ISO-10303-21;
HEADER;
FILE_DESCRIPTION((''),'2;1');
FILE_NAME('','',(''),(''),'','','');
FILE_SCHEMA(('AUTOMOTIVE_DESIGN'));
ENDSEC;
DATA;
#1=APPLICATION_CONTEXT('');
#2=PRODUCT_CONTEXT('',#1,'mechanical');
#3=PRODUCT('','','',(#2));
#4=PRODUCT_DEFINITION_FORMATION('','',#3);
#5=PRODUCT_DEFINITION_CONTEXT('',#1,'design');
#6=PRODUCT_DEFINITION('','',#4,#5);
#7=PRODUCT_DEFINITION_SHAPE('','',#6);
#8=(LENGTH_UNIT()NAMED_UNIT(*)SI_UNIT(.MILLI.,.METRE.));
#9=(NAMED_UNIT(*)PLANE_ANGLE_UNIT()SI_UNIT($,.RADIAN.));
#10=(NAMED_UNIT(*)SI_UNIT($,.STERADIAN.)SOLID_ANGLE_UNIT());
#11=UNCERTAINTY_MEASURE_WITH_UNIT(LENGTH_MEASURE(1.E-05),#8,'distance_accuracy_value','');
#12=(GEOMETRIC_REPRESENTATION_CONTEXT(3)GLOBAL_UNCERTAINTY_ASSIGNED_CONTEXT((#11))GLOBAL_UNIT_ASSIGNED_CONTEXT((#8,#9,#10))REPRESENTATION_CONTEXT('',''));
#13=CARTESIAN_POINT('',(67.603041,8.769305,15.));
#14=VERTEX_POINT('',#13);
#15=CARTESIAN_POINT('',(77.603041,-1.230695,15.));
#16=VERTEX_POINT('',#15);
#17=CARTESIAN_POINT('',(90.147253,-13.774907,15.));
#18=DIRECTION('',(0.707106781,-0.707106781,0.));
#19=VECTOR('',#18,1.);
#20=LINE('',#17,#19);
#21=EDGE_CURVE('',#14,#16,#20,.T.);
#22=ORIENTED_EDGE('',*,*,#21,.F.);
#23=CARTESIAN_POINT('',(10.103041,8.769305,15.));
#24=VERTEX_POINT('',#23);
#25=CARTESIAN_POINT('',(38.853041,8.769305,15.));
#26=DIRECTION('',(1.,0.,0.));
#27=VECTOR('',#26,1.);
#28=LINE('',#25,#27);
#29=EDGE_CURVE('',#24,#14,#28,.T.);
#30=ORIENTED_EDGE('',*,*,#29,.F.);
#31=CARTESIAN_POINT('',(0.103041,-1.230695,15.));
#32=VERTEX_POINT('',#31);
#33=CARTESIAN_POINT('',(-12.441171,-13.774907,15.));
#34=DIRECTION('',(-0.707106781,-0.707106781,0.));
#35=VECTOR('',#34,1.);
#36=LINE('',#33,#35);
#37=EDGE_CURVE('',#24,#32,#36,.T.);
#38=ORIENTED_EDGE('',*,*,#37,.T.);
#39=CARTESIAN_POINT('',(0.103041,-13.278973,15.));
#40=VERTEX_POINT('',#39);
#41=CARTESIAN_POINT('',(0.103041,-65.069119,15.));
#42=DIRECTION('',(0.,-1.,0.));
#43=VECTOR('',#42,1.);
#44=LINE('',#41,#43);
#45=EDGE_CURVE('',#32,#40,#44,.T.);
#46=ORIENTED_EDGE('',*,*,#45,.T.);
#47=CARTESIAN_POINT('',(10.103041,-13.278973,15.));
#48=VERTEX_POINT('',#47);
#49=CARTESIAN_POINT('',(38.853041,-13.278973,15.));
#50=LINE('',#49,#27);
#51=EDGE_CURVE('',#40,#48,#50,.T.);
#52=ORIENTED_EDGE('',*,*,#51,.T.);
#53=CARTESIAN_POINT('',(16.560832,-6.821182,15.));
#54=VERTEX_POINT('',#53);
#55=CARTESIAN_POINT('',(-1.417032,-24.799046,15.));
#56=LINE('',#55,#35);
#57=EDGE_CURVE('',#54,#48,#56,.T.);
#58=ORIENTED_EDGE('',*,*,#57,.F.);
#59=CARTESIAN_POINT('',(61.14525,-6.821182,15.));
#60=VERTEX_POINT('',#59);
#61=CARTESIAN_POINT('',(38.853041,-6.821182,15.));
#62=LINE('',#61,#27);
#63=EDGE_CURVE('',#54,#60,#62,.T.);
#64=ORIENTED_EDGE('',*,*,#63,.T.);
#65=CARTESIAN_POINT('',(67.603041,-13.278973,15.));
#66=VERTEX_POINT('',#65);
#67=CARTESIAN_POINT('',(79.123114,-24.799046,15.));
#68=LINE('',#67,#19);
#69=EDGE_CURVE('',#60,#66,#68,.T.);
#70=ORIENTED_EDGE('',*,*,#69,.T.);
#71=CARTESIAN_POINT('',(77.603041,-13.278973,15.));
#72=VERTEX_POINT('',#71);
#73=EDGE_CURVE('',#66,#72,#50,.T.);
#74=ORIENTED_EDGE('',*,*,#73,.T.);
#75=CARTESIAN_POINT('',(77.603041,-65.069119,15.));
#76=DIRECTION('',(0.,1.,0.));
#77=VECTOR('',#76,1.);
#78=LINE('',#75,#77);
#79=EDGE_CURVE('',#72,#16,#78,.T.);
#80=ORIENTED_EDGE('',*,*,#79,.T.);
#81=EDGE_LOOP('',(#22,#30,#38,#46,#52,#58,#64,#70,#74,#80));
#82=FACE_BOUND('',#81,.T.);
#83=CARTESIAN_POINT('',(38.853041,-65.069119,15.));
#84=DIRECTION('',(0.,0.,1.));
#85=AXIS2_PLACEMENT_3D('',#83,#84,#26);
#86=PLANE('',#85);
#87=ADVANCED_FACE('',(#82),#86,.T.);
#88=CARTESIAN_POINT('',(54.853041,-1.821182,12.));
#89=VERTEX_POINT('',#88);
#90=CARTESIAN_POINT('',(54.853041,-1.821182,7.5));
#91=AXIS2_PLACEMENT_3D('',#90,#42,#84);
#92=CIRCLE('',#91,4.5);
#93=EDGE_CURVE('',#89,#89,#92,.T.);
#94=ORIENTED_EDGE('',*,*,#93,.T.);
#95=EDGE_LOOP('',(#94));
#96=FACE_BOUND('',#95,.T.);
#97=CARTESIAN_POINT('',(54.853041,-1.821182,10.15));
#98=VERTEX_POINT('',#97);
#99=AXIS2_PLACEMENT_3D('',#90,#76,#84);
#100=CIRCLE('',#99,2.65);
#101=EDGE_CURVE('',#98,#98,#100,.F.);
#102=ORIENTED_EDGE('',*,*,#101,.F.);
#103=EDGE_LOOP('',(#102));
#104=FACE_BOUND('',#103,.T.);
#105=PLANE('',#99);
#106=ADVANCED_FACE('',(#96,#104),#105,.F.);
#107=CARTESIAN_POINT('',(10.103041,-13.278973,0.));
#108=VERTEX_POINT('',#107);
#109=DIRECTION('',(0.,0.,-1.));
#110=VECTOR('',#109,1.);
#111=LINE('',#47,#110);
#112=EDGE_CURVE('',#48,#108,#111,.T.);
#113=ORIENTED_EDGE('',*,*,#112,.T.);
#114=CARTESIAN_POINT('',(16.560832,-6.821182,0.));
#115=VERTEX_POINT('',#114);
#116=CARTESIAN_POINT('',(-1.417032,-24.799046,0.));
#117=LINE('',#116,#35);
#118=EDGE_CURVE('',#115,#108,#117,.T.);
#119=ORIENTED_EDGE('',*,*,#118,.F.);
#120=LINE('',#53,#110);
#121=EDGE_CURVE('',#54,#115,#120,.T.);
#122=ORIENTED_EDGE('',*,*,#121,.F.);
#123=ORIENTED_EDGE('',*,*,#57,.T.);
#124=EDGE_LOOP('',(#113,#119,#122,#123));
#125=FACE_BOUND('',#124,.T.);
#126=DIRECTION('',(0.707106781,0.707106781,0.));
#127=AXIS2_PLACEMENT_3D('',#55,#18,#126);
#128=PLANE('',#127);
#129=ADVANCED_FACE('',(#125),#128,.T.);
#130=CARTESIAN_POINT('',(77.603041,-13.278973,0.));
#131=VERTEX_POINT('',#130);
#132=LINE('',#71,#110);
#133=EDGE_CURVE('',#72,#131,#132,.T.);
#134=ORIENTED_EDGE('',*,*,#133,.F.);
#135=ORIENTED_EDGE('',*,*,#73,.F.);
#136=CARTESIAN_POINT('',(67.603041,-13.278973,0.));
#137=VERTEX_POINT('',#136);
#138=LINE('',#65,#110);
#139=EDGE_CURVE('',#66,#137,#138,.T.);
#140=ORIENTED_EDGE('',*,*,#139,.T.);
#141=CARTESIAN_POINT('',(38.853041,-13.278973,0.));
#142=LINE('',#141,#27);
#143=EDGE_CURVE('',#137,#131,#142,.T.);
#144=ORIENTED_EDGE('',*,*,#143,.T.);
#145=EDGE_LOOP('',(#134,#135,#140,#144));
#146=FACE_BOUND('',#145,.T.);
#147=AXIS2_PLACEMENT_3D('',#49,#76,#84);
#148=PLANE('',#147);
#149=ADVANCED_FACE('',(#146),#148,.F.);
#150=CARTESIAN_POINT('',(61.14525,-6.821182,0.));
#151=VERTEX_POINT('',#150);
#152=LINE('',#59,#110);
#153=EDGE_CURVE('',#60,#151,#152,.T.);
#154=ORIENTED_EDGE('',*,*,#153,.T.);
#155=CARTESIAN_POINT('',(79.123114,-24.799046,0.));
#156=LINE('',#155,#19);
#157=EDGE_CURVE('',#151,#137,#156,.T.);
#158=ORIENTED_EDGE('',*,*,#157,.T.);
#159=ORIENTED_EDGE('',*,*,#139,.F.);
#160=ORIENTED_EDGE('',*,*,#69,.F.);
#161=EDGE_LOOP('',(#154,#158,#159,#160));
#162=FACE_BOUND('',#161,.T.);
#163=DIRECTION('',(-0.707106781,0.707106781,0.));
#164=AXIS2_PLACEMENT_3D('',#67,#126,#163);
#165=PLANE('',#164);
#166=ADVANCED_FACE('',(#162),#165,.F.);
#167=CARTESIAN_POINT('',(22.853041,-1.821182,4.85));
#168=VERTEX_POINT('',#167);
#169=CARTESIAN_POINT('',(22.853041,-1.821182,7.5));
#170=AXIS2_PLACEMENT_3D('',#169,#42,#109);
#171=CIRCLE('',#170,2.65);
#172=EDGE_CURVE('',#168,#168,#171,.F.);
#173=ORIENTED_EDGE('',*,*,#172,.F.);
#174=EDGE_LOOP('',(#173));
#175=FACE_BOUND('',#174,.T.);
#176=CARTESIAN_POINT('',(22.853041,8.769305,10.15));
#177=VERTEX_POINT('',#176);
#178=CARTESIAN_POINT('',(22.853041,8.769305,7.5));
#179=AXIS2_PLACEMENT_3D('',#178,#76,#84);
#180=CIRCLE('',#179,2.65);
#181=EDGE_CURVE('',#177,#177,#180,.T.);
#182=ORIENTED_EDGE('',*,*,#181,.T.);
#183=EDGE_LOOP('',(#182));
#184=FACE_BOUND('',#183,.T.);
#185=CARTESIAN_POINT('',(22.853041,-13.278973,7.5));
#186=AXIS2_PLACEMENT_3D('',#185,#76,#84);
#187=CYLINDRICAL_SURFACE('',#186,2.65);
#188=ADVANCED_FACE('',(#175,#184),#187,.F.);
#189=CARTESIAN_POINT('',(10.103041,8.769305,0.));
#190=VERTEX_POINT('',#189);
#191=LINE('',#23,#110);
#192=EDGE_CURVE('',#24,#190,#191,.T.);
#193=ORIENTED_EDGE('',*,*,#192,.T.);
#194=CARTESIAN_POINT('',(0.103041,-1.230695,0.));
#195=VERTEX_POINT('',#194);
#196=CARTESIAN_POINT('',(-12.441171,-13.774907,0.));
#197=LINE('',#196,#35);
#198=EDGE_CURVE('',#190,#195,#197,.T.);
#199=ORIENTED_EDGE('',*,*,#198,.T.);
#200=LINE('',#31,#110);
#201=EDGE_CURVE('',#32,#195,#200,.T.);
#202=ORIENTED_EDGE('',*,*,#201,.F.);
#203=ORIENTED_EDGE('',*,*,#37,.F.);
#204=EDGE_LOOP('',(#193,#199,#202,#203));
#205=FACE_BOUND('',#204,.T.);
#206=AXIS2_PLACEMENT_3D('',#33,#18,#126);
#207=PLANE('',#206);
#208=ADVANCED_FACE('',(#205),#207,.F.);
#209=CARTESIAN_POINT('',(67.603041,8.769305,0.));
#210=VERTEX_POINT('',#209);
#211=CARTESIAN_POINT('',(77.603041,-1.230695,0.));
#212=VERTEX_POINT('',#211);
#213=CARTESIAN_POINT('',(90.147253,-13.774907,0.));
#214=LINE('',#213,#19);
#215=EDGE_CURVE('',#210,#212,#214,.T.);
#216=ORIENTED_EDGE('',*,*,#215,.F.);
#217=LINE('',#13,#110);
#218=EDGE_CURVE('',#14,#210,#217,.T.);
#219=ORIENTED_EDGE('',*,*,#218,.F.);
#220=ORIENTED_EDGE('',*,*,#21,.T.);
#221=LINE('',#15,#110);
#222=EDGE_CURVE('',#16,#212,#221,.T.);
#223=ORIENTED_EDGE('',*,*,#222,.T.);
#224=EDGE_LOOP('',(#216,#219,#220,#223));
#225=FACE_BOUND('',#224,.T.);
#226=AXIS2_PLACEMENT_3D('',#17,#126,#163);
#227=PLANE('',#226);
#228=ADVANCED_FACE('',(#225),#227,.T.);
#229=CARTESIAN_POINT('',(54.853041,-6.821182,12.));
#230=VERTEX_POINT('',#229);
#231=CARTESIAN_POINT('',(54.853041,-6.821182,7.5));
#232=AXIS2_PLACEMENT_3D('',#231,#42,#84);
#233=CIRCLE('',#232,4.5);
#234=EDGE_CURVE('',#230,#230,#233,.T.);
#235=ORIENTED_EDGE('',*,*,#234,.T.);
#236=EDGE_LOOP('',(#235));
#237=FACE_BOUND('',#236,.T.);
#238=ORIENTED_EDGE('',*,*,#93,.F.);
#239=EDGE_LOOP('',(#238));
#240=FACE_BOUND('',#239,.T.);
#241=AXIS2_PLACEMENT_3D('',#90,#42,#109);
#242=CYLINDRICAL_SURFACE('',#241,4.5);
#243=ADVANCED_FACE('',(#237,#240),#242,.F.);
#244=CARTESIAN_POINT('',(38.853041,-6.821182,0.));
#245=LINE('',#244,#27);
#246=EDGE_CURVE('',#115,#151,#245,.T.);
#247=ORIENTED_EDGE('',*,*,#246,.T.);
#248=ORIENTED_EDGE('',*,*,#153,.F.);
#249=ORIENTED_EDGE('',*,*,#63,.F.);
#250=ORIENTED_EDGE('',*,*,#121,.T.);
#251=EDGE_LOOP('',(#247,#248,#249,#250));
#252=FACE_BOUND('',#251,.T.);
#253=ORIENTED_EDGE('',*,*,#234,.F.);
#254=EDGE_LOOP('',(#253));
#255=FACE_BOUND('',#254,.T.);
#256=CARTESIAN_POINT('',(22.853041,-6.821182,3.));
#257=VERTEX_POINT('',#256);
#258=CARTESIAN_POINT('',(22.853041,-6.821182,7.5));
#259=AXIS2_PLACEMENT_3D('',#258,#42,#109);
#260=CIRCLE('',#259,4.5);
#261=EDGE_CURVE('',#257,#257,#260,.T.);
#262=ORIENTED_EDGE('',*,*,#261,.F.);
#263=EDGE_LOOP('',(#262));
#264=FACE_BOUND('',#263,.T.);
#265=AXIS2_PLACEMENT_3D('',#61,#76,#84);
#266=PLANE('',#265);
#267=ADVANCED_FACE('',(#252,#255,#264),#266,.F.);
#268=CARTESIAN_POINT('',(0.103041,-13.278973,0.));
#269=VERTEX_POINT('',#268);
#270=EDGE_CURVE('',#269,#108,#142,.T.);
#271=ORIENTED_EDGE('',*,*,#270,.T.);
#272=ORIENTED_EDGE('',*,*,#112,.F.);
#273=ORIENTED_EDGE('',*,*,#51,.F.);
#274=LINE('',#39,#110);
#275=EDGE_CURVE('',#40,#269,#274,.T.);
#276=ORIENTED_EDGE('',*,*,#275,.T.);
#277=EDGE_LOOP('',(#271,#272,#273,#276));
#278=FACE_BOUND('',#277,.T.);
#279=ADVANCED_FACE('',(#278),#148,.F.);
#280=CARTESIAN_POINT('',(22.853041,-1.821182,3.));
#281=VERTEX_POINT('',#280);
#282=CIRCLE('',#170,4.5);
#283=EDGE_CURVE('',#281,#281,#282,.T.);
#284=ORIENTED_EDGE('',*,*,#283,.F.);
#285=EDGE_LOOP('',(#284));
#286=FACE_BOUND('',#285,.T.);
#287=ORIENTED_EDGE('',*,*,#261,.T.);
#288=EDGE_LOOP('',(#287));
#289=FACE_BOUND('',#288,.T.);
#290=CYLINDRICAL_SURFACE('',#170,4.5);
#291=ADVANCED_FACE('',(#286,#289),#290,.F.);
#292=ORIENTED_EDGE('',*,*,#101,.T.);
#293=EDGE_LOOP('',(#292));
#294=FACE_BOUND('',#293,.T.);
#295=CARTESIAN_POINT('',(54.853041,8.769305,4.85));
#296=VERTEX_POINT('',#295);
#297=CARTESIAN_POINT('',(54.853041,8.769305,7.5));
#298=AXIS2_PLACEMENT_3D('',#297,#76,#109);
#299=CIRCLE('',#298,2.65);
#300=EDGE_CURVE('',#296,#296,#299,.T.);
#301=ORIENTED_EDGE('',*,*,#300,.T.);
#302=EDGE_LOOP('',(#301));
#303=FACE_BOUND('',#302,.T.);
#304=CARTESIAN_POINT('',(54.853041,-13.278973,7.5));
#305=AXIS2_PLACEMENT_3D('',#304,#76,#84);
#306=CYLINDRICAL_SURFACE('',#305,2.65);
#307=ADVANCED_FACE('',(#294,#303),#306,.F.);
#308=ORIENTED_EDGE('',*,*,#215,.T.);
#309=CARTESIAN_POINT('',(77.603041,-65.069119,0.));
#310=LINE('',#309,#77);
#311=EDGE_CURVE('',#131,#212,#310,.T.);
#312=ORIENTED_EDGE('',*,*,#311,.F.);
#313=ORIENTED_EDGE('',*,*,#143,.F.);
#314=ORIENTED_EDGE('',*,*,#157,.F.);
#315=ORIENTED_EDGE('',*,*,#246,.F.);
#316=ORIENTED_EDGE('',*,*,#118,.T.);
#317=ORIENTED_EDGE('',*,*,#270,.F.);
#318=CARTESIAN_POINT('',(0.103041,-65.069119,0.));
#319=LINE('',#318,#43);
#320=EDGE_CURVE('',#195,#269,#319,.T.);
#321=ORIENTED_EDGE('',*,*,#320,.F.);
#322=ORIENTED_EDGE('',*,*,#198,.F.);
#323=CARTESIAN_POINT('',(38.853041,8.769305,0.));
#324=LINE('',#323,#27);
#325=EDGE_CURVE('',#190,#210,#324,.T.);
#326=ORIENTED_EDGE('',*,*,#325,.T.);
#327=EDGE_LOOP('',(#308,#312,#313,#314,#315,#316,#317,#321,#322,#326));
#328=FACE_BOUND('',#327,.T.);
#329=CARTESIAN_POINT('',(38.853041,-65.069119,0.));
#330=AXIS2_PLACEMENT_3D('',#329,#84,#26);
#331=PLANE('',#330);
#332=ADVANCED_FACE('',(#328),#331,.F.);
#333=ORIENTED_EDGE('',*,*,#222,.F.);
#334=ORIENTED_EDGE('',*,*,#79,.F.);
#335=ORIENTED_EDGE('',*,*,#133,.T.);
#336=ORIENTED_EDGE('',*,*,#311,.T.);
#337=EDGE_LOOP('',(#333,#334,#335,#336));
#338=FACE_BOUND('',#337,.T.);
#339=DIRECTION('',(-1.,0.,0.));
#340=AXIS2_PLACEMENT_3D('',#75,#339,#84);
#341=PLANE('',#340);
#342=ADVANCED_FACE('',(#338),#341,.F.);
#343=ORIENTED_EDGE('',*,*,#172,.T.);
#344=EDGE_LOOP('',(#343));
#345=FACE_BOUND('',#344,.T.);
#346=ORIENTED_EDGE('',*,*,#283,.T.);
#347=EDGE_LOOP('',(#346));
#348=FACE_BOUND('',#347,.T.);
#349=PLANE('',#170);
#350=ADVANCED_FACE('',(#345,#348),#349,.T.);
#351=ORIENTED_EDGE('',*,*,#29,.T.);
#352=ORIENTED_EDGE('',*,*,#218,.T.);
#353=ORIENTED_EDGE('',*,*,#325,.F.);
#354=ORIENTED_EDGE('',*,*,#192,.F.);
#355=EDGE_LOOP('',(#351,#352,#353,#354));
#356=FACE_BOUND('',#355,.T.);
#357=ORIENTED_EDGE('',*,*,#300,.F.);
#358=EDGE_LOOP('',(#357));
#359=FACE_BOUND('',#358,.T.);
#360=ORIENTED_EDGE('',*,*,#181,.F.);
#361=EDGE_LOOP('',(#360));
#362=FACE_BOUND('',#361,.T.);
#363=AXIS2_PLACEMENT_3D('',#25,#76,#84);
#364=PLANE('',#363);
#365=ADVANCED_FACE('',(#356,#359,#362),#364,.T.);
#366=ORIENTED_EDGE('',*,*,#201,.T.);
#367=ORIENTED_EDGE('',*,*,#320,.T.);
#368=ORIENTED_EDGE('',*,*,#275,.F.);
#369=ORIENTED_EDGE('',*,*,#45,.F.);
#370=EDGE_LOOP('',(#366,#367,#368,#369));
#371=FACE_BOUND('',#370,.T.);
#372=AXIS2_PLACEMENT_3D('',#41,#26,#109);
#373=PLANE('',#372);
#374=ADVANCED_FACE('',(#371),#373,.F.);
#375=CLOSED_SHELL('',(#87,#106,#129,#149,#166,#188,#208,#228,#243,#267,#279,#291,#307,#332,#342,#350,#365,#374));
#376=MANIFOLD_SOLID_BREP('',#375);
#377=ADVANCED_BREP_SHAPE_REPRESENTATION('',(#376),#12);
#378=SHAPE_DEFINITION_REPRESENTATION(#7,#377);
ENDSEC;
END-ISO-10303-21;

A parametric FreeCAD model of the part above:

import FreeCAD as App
import Part
import Sketcher
Q = App.Units.Quantity

doc = App.newDocument("Part")
body = doc.addObject("PartDesign::Body", "Body")

sketch1 = body.newObject("Sketcher::SketchObject", "Sketch")
sketch1.AttachmentSupport = (doc.getObject("XY_Plane"), [""])
sketch1.MapMode = "FlatFace"
sketch1.addGeometry([
    Part.LineSegment(App.Vector(20.353041, 8.769305, 0), App.Vector(10.103041, 8.769305, 0)),
    Part.LineSegment(App.Vector(10.103041, 8.769305, 0), App.Vector(0.103041, -1.230695, 0)),
    Part.LineSegment(App.Vector(0.103041, -1.230695, 0), App.Vector(0.103041, -13.278973, 0)),
    Part.LineSegment(App.Vector(0.103041, -13.278973, 0), App.Vector(10.103041, -13.278973, 0)),
    Part.LineSegment(App.Vector(10.103041, -13.278973, 0), App.Vector(16.560832, -6.821182, 0)),
    Part.LineSegment(App.Vector(16.560832, -6.821182, 0), App.Vector(61.14525, -6.821182, 0)),
    Part.LineSegment(App.Vector(61.14525, -6.821182, 0), App.Vector(67.603041, -13.278973, 0)),
    Part.LineSegment(App.Vector(67.603041, -13.278973, 0), App.Vector(77.603041, -13.278973, 0)),
    Part.LineSegment(App.Vector(77.603041, -13.278973, 0), App.Vector(77.603041, -1.230695, 0)),
    Part.LineSegment(App.Vector(77.603041, -1.230695, 0), App.Vector(67.603041, 8.769305, 0)),
    Part.LineSegment(App.Vector(67.603041, 8.769305, 0), App.Vector(57.353041, 8.769305, 0)),
    Part.LineSegment(App.Vector(57.353041, 8.769305, 0), App.Vector(52.353041, 8.769305, 0)),
    Part.LineSegment(App.Vector(52.353041, 8.769305, 0), App.Vector(25.353041, 8.769305, 0)),
    Part.LineSegment(App.Vector(25.353041, 8.769305, 0), App.Vector(20.353041, 8.769305, 0)),
], False)
sketch1.addConstraint([
    Sketcher.Constraint("Coincident", 0, 2, 1, 1),
    Sketcher.Constraint("Coincident", 1, 2, 2, 1),
    Sketcher.Constraint("Coincident", 2, 2, 3, 1),
    Sketcher.Constraint("Coincident", 3, 2, 4, 1),
    Sketcher.Constraint("Coincident", 4, 2, 5, 1),
    Sketcher.Constraint("Coincident", 5, 2, 6, 1),
    Sketcher.Constraint("Coincident", 6, 2, 7, 1),
    Sketcher.Constraint("Coincident", 7, 2, 8, 1),
    Sketcher.Constraint("Coincident", 8, 2, 9, 1),
    Sketcher.Constraint("Coincident", 9, 2, 10, 1),
    Sketcher.Constraint("Coincident", 10, 2, 11, 1),
    Sketcher.Constraint("Coincident", 11, 2, 12, 1),
    Sketcher.Constraint("Coincident", 12, 2, 13, 1),
    Sketcher.Constraint("Coincident", 13, 2, 0, 1),
    Sketcher.Constraint("Horizontal", 0),
    Sketcher.Constraint("Vertical", 2),
    Sketcher.Constraint("Horizontal", 3),
    Sketcher.Constraint("Horizontal", 5),
    Sketcher.Constraint("Horizontal", 7),
    Sketcher.Constraint("Vertical", 8),
    Sketcher.Constraint("Horizontal", 10),
    Sketcher.Constraint("Horizontal", 11),
    Sketcher.Constraint("Horizontal", 12),
    Sketcher.Constraint("Horizontal", 13),
    Sketcher.Constraint("Parallel", 1, 4),
    Sketcher.Constraint("Perpendicular", 4, 6),
    Sketcher.Constraint("Parallel", 6, 9),
    Sketcher.Constraint("Horizontal", 3, 2, 6, 2),
    Sketcher.Constraint("Horizontal", 1, 2, 8, 2),
    Sketcher.Constraint("Vertical", 0, 2, 3, 2),
    Sketcher.Constraint("Vertical", 6, 2, 9, 2),
    Sketcher.Constraint("Equal", 3, 7),
    Sketcher.Constraint("Equal", 0, 10),
    Sketcher.Constraint("Equal", 11, 13),
    Sketcher.Constraint("DistanceX", 3, 1, 3, 2, Q("10 mm")),
    Sketcher.Constraint("DistanceX", 11, 2, 11, 1, Q("5 mm")),
    Sketcher.Constraint("DistanceX", 12, 2, 12, 1, Q("27 mm")),
    Sketcher.Constraint("DistanceX", 0, 2, 0, 1, Q("10.25 mm")),
    Sketcher.Constraint("DistanceX", 5, 1, 5, 2, Q("44.584418 mm")),
    Sketcher.Constraint("DistanceY", 2, 2, 2, 1, Q("12.048278 mm")),
    Sketcher.Constraint("DistanceX", -1, 1, 0, 2, Q("10.103041 mm")),
    Sketcher.Constraint("DistanceY", 4, 2, -1, 1, Q("6.821182 mm")),
])
pad1 = body.newObject("PartDesign::Pad", "Pad")
pad1.Profile = sketch1
pad1.Length = 15

sketch2 = body.newObject("Sketcher::SketchObject", "Sketch001")
sketch2.AttachmentSupport = (doc.getObject("XZ_Plane"), [""])
sketch2.MapMode = "FlatFace"
sketch2.AttachmentOffset = App.Placement(App.Vector(0, 0, -8.769305), App.Rotation())
sketch2.addGeometry([
    Part.Circle(App.Vector(22.853041, 7.5, 0), App.Vector(0, 0, 1), 2.65),
    Part.Circle(App.Vector(54.853041, 7.5, 0), App.Vector(0, 0, 1), 2.65),
], False)
sketch2.addConstraint([
    Sketcher.Constraint("Equal", 0, 1),
    Sketcher.Constraint("Horizontal", 0, 3, 1, 3),
    Sketcher.Constraint("Diameter", 0, Q("5.3 mm")),
    Sketcher.Constraint("DistanceX", 0, 3, 1, 3, Q("32 mm")),
    Sketcher.Constraint("DistanceY", -1, 1, 0, 3, Q("7.5 mm")),
    Sketcher.Constraint("DistanceX", -1, 1, 0, 3, Q("22.853041 mm")),
])
pocket1 = body.newObject("PartDesign::Pocket", "Pocket")
pocket1.Profile = sketch2
pocket1.Type = "ThroughAll"
pocket1.Reversed = True

sketch3 = body.newObject("Sketcher::SketchObject", "Sketch002")
sketch3.AttachmentSupport = (doc.getObject("XZ_Plane"), [""])
sketch3.MapMode = "FlatFace"
sketch3.AttachmentOffset = App.Placement(App.Vector(0, 0, 6.821182), App.Rotation())
sketch3.addGeometry([
    Part.Circle(App.Vector(22.853041, 7.5, 0), App.Vector(0, 0, 1), 4.5),
    Part.Circle(App.Vector(54.853041, 7.5, 0), App.Vector(0, 0, 1), 4.5),
], False)
sketch3.addConstraint([
    Sketcher.Constraint("Equal", 0, 1),
    Sketcher.Constraint("Horizontal", 0, 3, 1, 3),
    Sketcher.Constraint("Diameter", 0, Q("9 mm")),
    Sketcher.Constraint("DistanceX", 0, 3, 1, 3, Q("32 mm")),
    Sketcher.Constraint("DistanceY", -1, 1, 0, 3, Q("7.5 mm")),
    Sketcher.Constraint("DistanceX", -1, 1, 0, 3, Q("22.853041 mm")),
])
pocket2 = body.newObject("PartDesign::Pocket", "Pocket001")
pocket2.Profile = sketch3
pocket2.Length = 5

doc.recompute()
